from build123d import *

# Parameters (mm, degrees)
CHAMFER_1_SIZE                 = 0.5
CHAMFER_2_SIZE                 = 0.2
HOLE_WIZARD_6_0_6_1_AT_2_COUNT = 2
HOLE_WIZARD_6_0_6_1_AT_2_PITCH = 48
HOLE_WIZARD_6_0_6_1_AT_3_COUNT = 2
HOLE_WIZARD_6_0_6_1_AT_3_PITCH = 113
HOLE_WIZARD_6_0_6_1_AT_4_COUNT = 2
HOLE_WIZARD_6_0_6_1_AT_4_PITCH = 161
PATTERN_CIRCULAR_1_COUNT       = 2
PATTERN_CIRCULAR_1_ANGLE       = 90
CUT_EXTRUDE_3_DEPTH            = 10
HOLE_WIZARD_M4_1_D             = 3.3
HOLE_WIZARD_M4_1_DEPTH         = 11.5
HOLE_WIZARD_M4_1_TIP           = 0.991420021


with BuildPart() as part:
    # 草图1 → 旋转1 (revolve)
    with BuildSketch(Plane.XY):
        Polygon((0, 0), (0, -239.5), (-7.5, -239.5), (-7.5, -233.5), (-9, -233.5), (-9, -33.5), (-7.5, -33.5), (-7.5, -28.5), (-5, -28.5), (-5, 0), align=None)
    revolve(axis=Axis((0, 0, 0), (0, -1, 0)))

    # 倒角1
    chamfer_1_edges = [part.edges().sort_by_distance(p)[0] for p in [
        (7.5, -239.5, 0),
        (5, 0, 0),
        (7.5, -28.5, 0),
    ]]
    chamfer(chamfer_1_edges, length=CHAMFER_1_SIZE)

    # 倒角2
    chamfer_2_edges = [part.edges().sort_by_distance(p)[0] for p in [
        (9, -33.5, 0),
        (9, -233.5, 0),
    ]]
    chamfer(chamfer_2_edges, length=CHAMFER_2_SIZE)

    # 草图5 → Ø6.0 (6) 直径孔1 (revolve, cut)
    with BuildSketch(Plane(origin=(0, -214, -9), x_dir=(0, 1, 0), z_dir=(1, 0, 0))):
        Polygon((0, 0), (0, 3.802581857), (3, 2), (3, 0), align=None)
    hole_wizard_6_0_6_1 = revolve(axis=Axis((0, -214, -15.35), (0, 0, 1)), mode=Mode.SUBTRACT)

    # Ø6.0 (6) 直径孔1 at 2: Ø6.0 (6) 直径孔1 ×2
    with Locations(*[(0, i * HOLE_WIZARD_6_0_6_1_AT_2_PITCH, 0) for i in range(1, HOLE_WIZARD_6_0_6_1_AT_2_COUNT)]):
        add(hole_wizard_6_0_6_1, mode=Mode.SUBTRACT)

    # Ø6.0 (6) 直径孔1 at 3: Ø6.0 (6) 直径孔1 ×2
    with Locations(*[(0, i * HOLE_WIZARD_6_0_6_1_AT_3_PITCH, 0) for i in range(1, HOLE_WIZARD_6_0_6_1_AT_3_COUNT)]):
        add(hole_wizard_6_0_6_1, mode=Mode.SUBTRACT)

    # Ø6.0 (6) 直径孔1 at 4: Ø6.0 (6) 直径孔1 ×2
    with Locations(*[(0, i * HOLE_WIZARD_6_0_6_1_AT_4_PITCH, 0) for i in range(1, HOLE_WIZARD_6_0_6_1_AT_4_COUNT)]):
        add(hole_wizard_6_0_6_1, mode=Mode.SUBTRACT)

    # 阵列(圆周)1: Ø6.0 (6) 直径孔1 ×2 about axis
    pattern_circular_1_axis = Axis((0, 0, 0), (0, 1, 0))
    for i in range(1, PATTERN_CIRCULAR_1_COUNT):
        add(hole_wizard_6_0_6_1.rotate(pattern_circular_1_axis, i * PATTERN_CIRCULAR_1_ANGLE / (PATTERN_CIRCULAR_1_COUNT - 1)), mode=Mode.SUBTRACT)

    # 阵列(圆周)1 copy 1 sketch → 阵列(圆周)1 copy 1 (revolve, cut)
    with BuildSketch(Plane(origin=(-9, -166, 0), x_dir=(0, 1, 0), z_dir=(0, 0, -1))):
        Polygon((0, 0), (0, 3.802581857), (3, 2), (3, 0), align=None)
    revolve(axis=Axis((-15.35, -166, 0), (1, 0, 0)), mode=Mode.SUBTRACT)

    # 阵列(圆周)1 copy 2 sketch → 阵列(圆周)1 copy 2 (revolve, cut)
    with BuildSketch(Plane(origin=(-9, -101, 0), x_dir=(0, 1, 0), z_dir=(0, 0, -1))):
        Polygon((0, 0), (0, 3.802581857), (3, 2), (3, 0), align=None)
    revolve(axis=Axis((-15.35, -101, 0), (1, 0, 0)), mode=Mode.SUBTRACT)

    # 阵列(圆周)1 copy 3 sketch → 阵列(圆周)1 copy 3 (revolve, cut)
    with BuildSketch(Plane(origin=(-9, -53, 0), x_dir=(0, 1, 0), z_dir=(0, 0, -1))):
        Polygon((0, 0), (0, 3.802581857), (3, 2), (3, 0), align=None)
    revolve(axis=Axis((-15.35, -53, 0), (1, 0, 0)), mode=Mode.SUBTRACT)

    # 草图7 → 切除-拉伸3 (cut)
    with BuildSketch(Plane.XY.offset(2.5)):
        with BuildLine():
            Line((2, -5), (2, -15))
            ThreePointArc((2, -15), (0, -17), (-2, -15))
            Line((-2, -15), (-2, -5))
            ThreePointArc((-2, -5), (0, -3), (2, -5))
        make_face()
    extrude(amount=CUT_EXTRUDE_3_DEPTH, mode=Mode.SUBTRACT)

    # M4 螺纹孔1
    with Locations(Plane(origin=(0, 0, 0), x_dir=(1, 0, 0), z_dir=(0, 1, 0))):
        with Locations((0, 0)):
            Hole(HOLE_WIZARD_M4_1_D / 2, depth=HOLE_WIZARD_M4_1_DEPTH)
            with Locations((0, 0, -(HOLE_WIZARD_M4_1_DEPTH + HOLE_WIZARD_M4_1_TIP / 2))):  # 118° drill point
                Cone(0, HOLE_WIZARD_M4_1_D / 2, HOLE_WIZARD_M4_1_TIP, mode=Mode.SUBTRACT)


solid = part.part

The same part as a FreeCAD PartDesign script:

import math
import FreeCAD as App
import Part
import Sketcher
from FreeCAD import Vector
Q = App.Units.Quantity


def edges_at(feature, points):
    """Names of the edges that pass closest to the given points."""
    edges = feature.Shape.Edges
    near = lambda p: min(range(len(edges)), key=lambda i: edges[i].distToShape(Part.Vertex(*p))[0])
    return sorted({f"Edge{near(p) + 1}" for p in points})


def add_polygon(sketch, points):
    """Adds a closed chain of lines whose ends are joined by coincident constraints."""
    first, n = sketch.GeometryCount, len(points)
    for a, b in zip(points, points[1:] + points[:1]):
        sketch.addGeometry(Part.LineSegment(App.Vector(*a, 0), App.Vector(*b, 0)), False)
    for i in range(n):
        sketch.addConstraint(Sketcher.Constraint("Coincident", first + i, 2, first + (i + 1) % n, 1))

doc = App.newDocument("Part")
body = doc.addObject("PartDesign::Body", "Body")

# Sketch on XY plane
sketch1 = body.newObject("Sketcher::SketchObject", "Sketch")
sketch1.AttachmentSupport = (doc.getObject("XY_Plane"), [""])
sketch1.MapMode = "FlatFace"
add_polygon(sketch1, [(0, -239.5), (0, 0), (-5, 0), (-5, -28.5), (-7.5, -28.5), (-7.5, -33.5), (-9, -33.5), (-9, -233.5), (-7.5, -233.5), (-7.5, -239.5)])  # lines 0-9
sketch1.addConstraint(Sketcher.Constraint("Vertical", 0))
sketch1.addConstraint(Sketcher.Constraint("Horizontal", 1))
sketch1.addConstraint(Sketcher.Constraint("Vertical", 2))
sketch1.addConstraint(Sketcher.Constraint("Horizontal", 3))
sketch1.addConstraint(Sketcher.Constraint("Vertical", 4))
sketch1.addConstraint(Sketcher.Constraint("Horizontal", 5))
sketch1.addConstraint(Sketcher.Constraint("Vertical", 6))
sketch1.addConstraint(Sketcher.Constraint("Horizontal", 7))
sketch1.addConstraint(Sketcher.Constraint("Vertical", 8))
sketch1.addConstraint(Sketcher.Constraint("Horizontal", 9))
sketch1.addConstraint(Sketcher.Constraint("Coincident", 0, 2, -1, 1))
sketch1.addConstraint(Sketcher.Constraint("Vertical", 4, 2, 7, 2))
sketch1.addConstraint(Sketcher.Constraint("Equal", 1, 4))
sketch1.addConstraint(Sketcher.Constraint("DistanceX", 1, 2, 1, 1, 5.0))
sketch1.addConstraint(Sketcher.Constraint("DistanceY", 6, 2, 6, 1, 200.0))
sketch1.addConstraint(Sketcher.Constraint("DistanceY", 8, 2, 8, 1, 6.0))
sketch1.addConstraint(Sketcher.Constraint("DistanceX", 3, 2, 3, 1, 2.5))
sketch1.addConstraint(Sketcher.Constraint("DistanceX", 5, 2, 5, 1, 1.5))
sketch1.addConstraint(Sketcher.Constraint("DistanceY", 0, 1, 0, 2, 239.5))
revolution = body.newObject("PartDesign::Revolution", "Revolution")
revolution.Profile = sketch1
revolution.ReferenceAxis = (sketch1, ["V_Axis"])
revolution.Angle = 360
doc.recompute()

chamfer = body.newObject("PartDesign::Chamfer", "Chamfer")
chamfer.Base = (revolution, edges_at(revolution, [(7.5, -239.5, 0), (5, 0, 0), (7.5, -28.5, 0)]))
chamfer.Size = 0.5
doc.recompute()

chamfer2 = body.newObject("PartDesign::Chamfer", "Chamfer001")
chamfer2.Base = (chamfer, edges_at(chamfer, [(9, -33.5, 0), (9, -233.5, 0)]))
chamfer2.Size = 0.2

# Sketch on YZ plane
sketch2 = body.newObject("Sketcher::SketchObject", "Sketch001")
sketch2.AttachmentSupport = (doc.getObject("YZ_Plane"), [""])
sketch2.MapMode = "FlatFace"
add_polygon(sketch2, [(-214, -5.197418), (-214, -9), (-211, -9), (-211, -7)])  # lines 0-3
sketch2.addGeometry(Part.LineSegment(Vector(-214, -9, 0), Vector(-214, -5.197418, 0)), True)  # axis
sketch2.addConstraint(Sketcher.Constraint("Vertical", 0))
sketch2.addConstraint(Sketcher.Constraint("Horizontal", 1))
sketch2.addConstraint(Sketcher.Constraint("Vertical", 2))
sketch2.addConstraint(Sketcher.Constraint("Vertical", 4))
sketch2.addConstraint(Sketcher.Constraint("Coincident", 4, 1, 0, 2))
sketch2.addConstraint(Sketcher.Constraint("Equal", 0, 4))
sketch2.addConstraint(Sketcher.Constraint("DistanceX", 1, 1, 1, 2, 3.0))
sketch2.addConstraint(Sketcher.Constraint("DistanceY", 2, 1, 2, 2, 2.0))
sketch2.addConstraint(Sketcher.Constraint("Angle", 3, Q("149 deg")))
sketch2.addConstraint(Sketcher.Constraint("DistanceX", 0, 2, -1, 1, 214.0))
sketch2.addConstraint(Sketcher.Constraint("DistanceY", 0, 2, -1, 1, 9.0))
groove = body.newObject("PartDesign::Groove", "Groove")
groove.Profile = sketch2
groove.ReferenceAxis = (sketch2, ["Axis0"])
groove.Angle = 360
doc.recompute()

linearpattern = body.newObject("PartDesign::LinearPattern", "LinearPattern")
linearpattern.Originals = [groove]
linearpattern.Direction = (doc.getObject("Y_Axis"), [""])
linearpattern.Mode = "offset"
linearpattern.Offset = 48
linearpattern.Occurrences = 2
body.Tip = linearpattern
doc.recompute()

linearpattern2 = body.newObject("PartDesign::LinearPattern", "LinearPattern001")
linearpattern2.Originals = [groove]
linearpattern2.Direction = (doc.getObject("Y_Axis"), [""])
linearpattern2.Mode = "offset"
linearpattern2.Offset = 113
linearpattern2.Occurrences = 2
body.Tip = linearpattern2
doc.recompute()

linearpattern3 = body.newObject("PartDesign::LinearPattern", "LinearPattern002")
linearpattern3.Originals = [groove]
linearpattern3.Direction = (doc.getObject("Y_Axis"), [""])
linearpattern3.Mode = "offset"
linearpattern3.Offset = 161
linearpattern3.Occurrences = 2
body.Tip = linearpattern3
doc.recompute()

polarpattern = body.newObject("PartDesign::PolarPattern", "PolarPattern")
polarpattern.Originals = [groove]
polarpattern.Axis = (doc.getObject("Y_Axis"), [""])
polarpattern.Angle = 90
polarpattern.Occurrences = 2
body.Tip = polarpattern

# Sketch on XY plane
sketch3 = body.newObject("Sketcher::SketchObject", "Sketch002")
sketch3.AttachmentSupport = (doc.getObject("XY_Plane"), [""])
sketch3.MapMode = "FlatFace"
add_polygon(sketch3, [(-5.197418, -166), (-9, -166), (-9, -163), (-7, -163)])  # lines 0-3
sketch3.addGeometry(Part.LineSegment(Vector(-9, -166, 0), Vector(-5.197418, -166, 0)), True)  # axis
sketch3.addConstraint(Sketcher.Constraint("Horizontal", 0))
sketch3.addConstraint(Sketcher.Constraint("Vertical", 1))
sketch3.addConstraint(Sketcher.Constraint("Horizontal", 2))
sketch3.addConstraint(Sketcher.Constraint("Horizontal", 4))
sketch3.addConstraint(Sketcher.Constraint("Coincident", 4, 1, 0, 2))
sketch3.addConstraint(Sketcher.Constraint("Equal", 0, 4))
sketch3.addConstraint(Sketcher.Constraint("DistanceX", 2, 1, 2, 2, 2.0))
sketch3.addConstraint(Sketcher.Constraint("DistanceY", 1, 1, 1, 2, 3.0))
sketch3.addConstraint(Sketcher.Constraint("Angle", 3, Q("-59 deg")))
sketch3.addConstraint(Sketcher.Constraint("DistanceX", 0, 2, -1, 1, 9.0))
sketch3.addConstraint(Sketcher.Constraint("DistanceY", 0, 2, -1, 1, 166.0))
groove2 = body.newObject("PartDesign::Groove", "Groove001")
groove2.Profile = sketch3
groove2.ReferenceAxis = (sketch3, ["Axis0"])
groove2.Angle = 360

# Sketch on XY plane
sketch4 = body.newObject("Sketcher::SketchObject", "Sketch003")
sketch4.AttachmentSupport = (doc.getObject("XY_Plane"), [""])
sketch4.MapMode = "FlatFace"
add_polygon(sketch4, [(-5.197418, -101), (-9, -101), (-9, -98), (-7, -98)])  # lines 0-3
sketch4.addGeometry(Part.LineSegment(Vector(-9, -101, 0), Vector(-5.197418, -101, 0)), True)  # axis
sketch4.addConstraint(Sketcher.Constraint("Horizontal", 0))
sketch4.addConstraint(Sketcher.Constraint("Vertical", 1))
sketch4.addConstraint(Sketcher.Constraint("Horizontal", 2))
sketch4.addConstraint(Sketcher.Constraint("Horizontal", 4))
sketch4.addConstraint(Sketcher.Constraint("Coincident", 4, 1, 0, 2))
sketch4.addConstraint(Sketcher.Constraint("Equal", 0, 4))
sketch4.addConstraint(Sketcher.Constraint("DistanceX", 2, 1, 2, 2, 2.0))
sketch4.addConstraint(Sketcher.Constraint("DistanceY", 1, 1, 1, 2, 3.0))
sketch4.addConstraint(Sketcher.Constraint("Angle", 3, Q("-59 deg")))
sketch4.addConstraint(Sketcher.Constraint("DistanceX", 0, 2, -1, 1, 9.0))
sketch4.addConstraint(Sketcher.Constraint("DistanceY", 0, 2, -1, 1, 101.0))
groove3 = body.newObject("PartDesign::Groove", "Groove002")
groove3.Profile = sketch4
groove3.ReferenceAxis = (sketch4, ["Axis0"])
groove3.Angle = 360

# Sketch on XY plane
sketch5 = body.newObject("Sketcher::SketchObject", "Sketch004")
sketch5.AttachmentSupport = (doc.getObject("XY_Plane"), [""])
sketch5.MapMode = "FlatFace"
add_polygon(sketch5, [(-5.197418, -53), (-9, -53), (-9, -50), (-7, -50)])  # lines 0-3
sketch5.addGeometry(Part.LineSegment(Vector(-9, -53, 0), Vector(-5.197418, -53, 0)), True)  # axis
sketch5.addConstraint(Sketcher.Constraint("Horizontal", 0))
sketch5.addConstraint(Sketcher.Constraint("Vertical", 1))
sketch5.addConstraint(Sketcher.Constraint("Horizontal", 2))
sketch5.addConstraint(Sketcher.Constraint("Horizontal", 4))
sketch5.addConstraint(Sketcher.Constraint("Coincident", 4, 1, 0, 2))
sketch5.addConstraint(Sketcher.Constraint("Equal", 0, 4))
sketch5.addConstraint(Sketcher.Constraint("DistanceX", 2, 1, 2, 2, 2.0))
sketch5.addConstraint(Sketcher.Constraint("DistanceY", 1, 1, 1, 2, 3.0))
sketch5.addConstraint(Sketcher.Constraint("Angle", 3, Q("-59 deg")))
sketch5.addConstraint(Sketcher.Constraint("DistanceX", 0, 2, -1, 1, 9.0))
sketch5.addConstraint(Sketcher.Constraint("DistanceY", 0, 2, -1, 1, 53.0))
groove4 = body.newObject("PartDesign::Groove", "Groove003")
groove4.Profile = sketch5
groove4.ReferenceAxis = (sketch5, ["Axis0"])
groove4.Angle = 360

# Sketch on XY plane
sketch6 = body.newObject("Sketcher::SketchObject", "Sketch005")
sketch6.AttachmentSupport = (doc.getObject("XY_Plane"), [""])
sketch6.MapMode = "FlatFace"
sketch6.AttachmentOffset = App.Placement(Vector(0, 0, 2.5), App.Rotation())
sketch6.addGeometry(Part.LineSegment(Vector(2, -15, 0), Vector(2, -5, 0)), False)
sketch6.addGeometry(Part.ArcOfCircle(Part.Circle(Vector(0, -5, 0), Vector(0, 0, 1), 2), math.radians(0), math.radians(180)), False)
sketch6.addGeometry(Part.LineSegment(Vector(-2, -5, 0), Vector(-2, -15, 0)), False)
sketch6.addGeometry(Part.ArcOfCircle(Part.Circle(Vector(0, -15, 0), Vector(0, 0, 1), 2), math.radians(180), math.radians(360)), False)
sketch6.addConstraint(Sketcher.Constraint("Tangent", 0, 2, 1, 1))
sketch6.addConstraint(Sketcher.Constraint("Tangent", 1, 2, 2, 1))
sketch6.addConstraint(Sketcher.Constraint("Tangent", 2, 2, 3, 1))
sketch6.addConstraint(Sketcher.Constraint("Tangent", 3, 2, 0, 1))
sketch6.addConstraint(Sketcher.Constraint("Vertical", 0))
sketch6.addConstraint(Sketcher.Constraint("Vertical", 2))
sketch6.addConstraint(Sketcher.Constraint("PointOnObject", 1, 3, -2))
sketch6.addConstraint(Sketcher.Constraint("Radius", 1, 2.0))
sketch6.addConstraint(Sketcher.Constraint("DistanceY", 0, 1, 0, 2, 10.0))
sketch6.addConstraint(Sketcher.Constraint("DistanceY", 1, 3, -1, 1, 5.0))
pocket1 = body.newObject("PartDesign::Pocket", "Pocket")
pocket1.Profile = sketch6
pocket1.Length = 10
pocket1.Reversed = True

# Sketch on XZ plane
sketch7 = body.newObject("Sketcher::SketchObject", "Sketch006")
sketch7.AttachmentSupport = (doc.getObject("XZ_Plane"), [""])
sketch7.MapMode = "FlatFace"
sketch7.addGeometry(Part.Circle(Vector(0, 0, 0), Vector(0, 0, 1), 1.65), False)
sketch7.addConstraint(Sketcher.Constraint("Coincident", 0, 3, -1, 1))
sketch7.addConstraint(Sketcher.Constraint("Diameter", 0, 3.3))
doc.recompute()
hole = body.newObject("PartDesign::Hole", "Hole")
hole.Profile = sketch7
hole.ThreadType = "None"
hole.Diameter = 3.3
hole.DepthType = "Dimension"
hole.Depth = 11.5
hole.DrillPoint = "Angled"
hole.DrillPointAngle = 118
hole.Reversed = True

doc.recompute()
